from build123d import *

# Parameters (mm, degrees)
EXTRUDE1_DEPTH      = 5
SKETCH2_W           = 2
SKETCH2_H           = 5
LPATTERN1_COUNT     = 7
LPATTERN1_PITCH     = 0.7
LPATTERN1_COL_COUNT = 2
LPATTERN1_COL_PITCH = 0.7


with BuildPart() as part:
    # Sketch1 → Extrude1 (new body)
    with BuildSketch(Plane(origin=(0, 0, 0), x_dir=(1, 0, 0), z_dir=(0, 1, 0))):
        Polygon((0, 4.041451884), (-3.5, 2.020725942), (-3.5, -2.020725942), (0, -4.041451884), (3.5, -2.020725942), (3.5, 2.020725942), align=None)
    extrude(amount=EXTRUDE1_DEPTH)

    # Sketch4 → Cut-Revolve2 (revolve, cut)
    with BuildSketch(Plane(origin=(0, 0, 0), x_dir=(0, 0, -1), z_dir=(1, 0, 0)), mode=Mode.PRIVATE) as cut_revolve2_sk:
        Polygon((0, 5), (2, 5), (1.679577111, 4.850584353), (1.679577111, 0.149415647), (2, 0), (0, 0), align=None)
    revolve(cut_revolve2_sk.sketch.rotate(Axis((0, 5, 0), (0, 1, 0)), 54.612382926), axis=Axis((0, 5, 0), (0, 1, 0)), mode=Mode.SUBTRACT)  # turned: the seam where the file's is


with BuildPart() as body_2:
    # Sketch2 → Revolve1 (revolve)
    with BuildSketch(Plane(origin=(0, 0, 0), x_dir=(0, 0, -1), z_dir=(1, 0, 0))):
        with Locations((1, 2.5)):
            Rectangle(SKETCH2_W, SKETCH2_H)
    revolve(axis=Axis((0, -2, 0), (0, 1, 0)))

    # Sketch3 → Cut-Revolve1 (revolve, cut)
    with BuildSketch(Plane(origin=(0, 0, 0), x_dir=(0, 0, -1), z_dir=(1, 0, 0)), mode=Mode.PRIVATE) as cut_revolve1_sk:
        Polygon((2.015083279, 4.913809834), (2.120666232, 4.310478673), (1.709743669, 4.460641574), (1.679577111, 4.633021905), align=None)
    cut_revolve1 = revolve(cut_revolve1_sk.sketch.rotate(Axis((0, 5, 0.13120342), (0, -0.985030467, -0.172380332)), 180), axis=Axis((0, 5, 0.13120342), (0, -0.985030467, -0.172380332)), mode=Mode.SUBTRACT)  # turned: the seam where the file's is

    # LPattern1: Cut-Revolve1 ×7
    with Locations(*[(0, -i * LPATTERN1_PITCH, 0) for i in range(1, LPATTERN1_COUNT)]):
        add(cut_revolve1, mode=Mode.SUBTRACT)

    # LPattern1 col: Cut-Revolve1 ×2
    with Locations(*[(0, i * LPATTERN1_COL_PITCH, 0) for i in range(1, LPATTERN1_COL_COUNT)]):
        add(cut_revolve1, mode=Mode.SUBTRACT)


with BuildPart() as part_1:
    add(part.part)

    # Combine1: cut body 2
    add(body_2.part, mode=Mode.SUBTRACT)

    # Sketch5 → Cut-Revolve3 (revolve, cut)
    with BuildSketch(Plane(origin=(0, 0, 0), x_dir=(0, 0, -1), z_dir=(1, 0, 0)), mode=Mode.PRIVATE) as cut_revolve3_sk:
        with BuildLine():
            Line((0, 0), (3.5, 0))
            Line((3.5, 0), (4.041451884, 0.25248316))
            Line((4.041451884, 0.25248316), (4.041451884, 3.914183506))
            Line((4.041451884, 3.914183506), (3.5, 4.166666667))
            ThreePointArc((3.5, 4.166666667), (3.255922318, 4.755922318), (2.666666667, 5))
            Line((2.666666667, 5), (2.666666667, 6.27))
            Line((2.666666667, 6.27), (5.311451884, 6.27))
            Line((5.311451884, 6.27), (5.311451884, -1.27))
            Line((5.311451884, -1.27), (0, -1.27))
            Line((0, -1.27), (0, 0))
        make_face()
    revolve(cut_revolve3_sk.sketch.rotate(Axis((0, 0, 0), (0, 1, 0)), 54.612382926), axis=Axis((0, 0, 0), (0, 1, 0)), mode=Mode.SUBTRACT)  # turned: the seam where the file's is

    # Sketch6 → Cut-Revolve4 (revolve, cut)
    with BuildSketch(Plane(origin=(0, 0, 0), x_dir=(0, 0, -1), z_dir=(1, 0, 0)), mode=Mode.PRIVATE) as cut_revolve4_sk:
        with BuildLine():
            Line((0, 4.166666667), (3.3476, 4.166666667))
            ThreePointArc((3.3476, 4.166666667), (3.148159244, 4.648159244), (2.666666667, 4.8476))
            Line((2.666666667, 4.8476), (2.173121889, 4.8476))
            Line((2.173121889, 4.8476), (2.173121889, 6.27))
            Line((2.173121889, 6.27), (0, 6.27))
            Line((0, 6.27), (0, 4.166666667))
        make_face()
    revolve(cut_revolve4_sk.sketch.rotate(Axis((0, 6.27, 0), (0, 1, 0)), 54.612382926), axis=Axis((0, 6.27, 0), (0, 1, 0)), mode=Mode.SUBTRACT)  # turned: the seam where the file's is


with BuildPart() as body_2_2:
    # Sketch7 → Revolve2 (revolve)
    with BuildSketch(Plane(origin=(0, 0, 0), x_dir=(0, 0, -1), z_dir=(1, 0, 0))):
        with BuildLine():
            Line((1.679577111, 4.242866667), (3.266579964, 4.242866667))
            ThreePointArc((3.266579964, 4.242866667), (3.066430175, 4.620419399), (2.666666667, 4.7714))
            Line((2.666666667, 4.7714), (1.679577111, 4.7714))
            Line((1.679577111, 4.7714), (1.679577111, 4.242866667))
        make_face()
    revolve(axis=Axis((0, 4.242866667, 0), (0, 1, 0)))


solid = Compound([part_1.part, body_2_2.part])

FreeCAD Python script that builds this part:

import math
import FreeCAD as App
import Part
import Sketcher
Q = App.Units.Quantity

doc = App.newDocument("Part")
body = doc.addObject("PartDesign::Body", "Body")

# Sketch on XZ plane
sketch1 = body.newObject("Sketcher::SketchObject", "Sketch")
sketch1.AttachmentSupport = (doc.getObject("XZ_Plane"), [""])
sketch1.MapMode = "FlatFace"
sketch1.addGeometry(Part.LineSegment(App.Vector(0, -4.041452, 0), App.Vector(-3.5, -2.020726, 0)), False)
sketch1.addGeometry(Part.LineSegment(App.Vector(-3.5, -2.020726, 0), App.Vector(-3.5, 2.020726, 0)), False)
sketch1.addGeometry(Part.LineSegment(App.Vector(-3.5, 2.020726, 0), App.Vector(0, 4.041452, 0)), False)
sketch1.addGeometry(Part.LineSegment(App.Vector(0, 4.041452, 0), App.Vector(3.5, 2.020726, 0)), False)
sketch1.addGeometry(Part.LineSegment(App.Vector(3.5, 2.020726, 0), App.Vector(3.5, -2.020726, 0)), False)
sketch1.addGeometry(Part.LineSegment(App.Vector(3.5, -2.020726, 0), App.Vector(0, -4.041452, 0)), False)
sketch1.addConstraint(Sketcher.Constraint("Coincident", 0, 2, 1, 1))
sketch1.addConstraint(Sketcher.Constraint("Coincident", 1, 2, 2, 1))
sketch1.addConstraint(Sketcher.Constraint("Coincident", 2, 2, 3, 1))
sketch1.addConstraint(Sketcher.Constraint("Coincident", 3, 2, 4, 1))
sketch1.addConstraint(Sketcher.Constraint("Coincident", 4, 2, 5, 1))
sketch1.addConstraint(Sketcher.Constraint("Coincident", 5, 2, 0, 1))
sketch1.addConstraint(Sketcher.Constraint("Vertical", 1))
sketch1.addConstraint(Sketcher.Constraint("Vertical", 4))
sketch1.addConstraint(Sketcher.Constraint("Symmetric", 0, 2, 3, 2, -1, 1))
sketch1.addConstraint(Sketcher.Constraint("Symmetric", 2, 2, 5, 2, -1, 1))
sketch1.addConstraint(Sketcher.Constraint("PointOnObject", 2, 2, -2))
sketch1.addConstraint(Sketcher.Constraint("Parallel", 2, 5))
sketch1.addConstraint(Sketcher.Constraint("Horizontal", 1, 2, 3, 2))
sketch1.addConstraint(Sketcher.Constraint("Angle", 0, Q("150 deg")))
sketch1.addConstraint(Sketcher.Constraint("DistanceX", 1, 2, 3, 2, 7.0))
sketch1.addConstraint(Sketcher.Constraint("DistanceY", 1, 1, 1, 2, 4.041452))
pad1 = body.newObject("PartDesign::Pad", "Pad")
pad1.Profile = sketch1
pad1.Length = 5
pad1.Reversed = True

# Sketch on YZ plane
sketch2 = body.newObject("Sketcher::SketchObject", "Sketch001")
sketch2.AttachmentSupport = (doc.getObject("YZ_Plane"), [""])
sketch2.MapMode = "FlatFace"
sketch2.addGeometry(Part.LineSegment(App.Vector(5, -2, 0), App.Vector(5, 0, 0)), False)
sketch2.addGeometry(Part.LineSegment(App.Vector(5, 0, 0), App.Vector(0, 0, 0)), False)
sketch2.addGeometry(Part.LineSegment(App.Vector(0, 0, 0), App.Vector(0, -2, 0)), False)
sketch2.addGeometry(Part.LineSegment(App.Vector(0, -2, 0), App.Vector(0.149416, -1.679577, 0)), False)
sketch2.addGeometry(Part.LineSegment(App.Vector(0.149416, -1.679577, 0), App.Vector(4.850584, -1.679577, 0)), False)
sketch2.addGeometry(Part.LineSegment(App.Vector(4.850584, -1.679577, 0), App.Vector(5, -2, 0)), False)
sketch2.addConstraint(Sketcher.Constraint("Coincident", 0, 2, 1, 1))
sketch2.addConstraint(Sketcher.Constraint("Coincident", 1, 2, 2, 1))
sketch2.addConstraint(Sketcher.Constraint("Coincident", 2, 2, 3, 1))
sketch2.addConstraint(Sketcher.Constraint("Coincident", 3, 2, 4, 1))
sketch2.addConstraint(Sketcher.Constraint("Coincident", 4, 2, 5, 1))
sketch2.addConstraint(Sketcher.Constraint("Coincident", 5, 2, 0, 1))
sketch2.addConstraint(Sketcher.Constraint("Vertical", 0))
sketch2.addConstraint(Sketcher.Constraint("Horizontal", 1))
sketch2.addConstraint(Sketcher.Constraint("Vertical", 2))
sketch2.addConstraint(Sketcher.Constraint("Horizontal", 4))
sketch2.addConstraint(Sketcher.Constraint("Coincident", 1, 2, -1, 1))
sketch2.addConstraint(Sketcher.Constraint("Horizontal", 2, 2, 5, 2))
sketch2.addConstraint(Sketcher.Constraint("Equal", 3, 5))
sketch2.addConstraint(Sketcher.Constraint("DistanceX", 1, 2, 1, 1, 5.0))
sketch2.addConstraint(Sketcher.Constraint("DistanceY", 0, 1, 0, 2, 2.0))
sketch2.addConstraint(Sketcher.Constraint("Angle", 3, Q("65 deg")))
sketch2.addConstraint(Sketcher.Constraint("DistanceX", 4, 1, 4, 2, 4.701169))
groove = body.newObject("PartDesign::Groove", "Groove")
groove.Profile = sketch2
groove.ReferenceAxis = (sketch2, ["H_Axis"])
groove.Angle = 360
body2 = doc.addObject("PartDesign::Body", "Body001")

# Sketch on YZ plane
sketch3 = body2.newObject("Sketcher::SketchObject", "Sketch002")
sketch3.AttachmentSupport = (doc.getObject("YZ_Plane001"), [""])
sketch3.MapMode = "FlatFace"
sketch3.addGeometry(Part.LineSegment(App.Vector(5, 0, 0), App.Vector(0, 0, 0)), False)
sketch3.addGeometry(Part.LineSegment(App.Vector(0, 0, 0), App.Vector(0, -2, 0)), False)
sketch3.addGeometry(Part.LineSegment(App.Vector(0, -2, 0), App.Vector(5, -2, 0)), False)
sketch3.addGeometry(Part.LineSegment(App.Vector(5, -2, 0), App.Vector(5, 0, 0)), False)
sketch3.addConstraint(Sketcher.Constraint("Coincident", 0, 2, 1, 1))
sketch3.addConstraint(Sketcher.Constraint("Coincident", 1, 2, 2, 1))
sketch3.addConstraint(Sketcher.Constraint("Coincident", 2, 2, 3, 1))
sketch3.addConstraint(Sketcher.Constraint("Coincident", 3, 2, 0, 1))
sketch3.addConstraint(Sketcher.Constraint("Horizontal", 0))
sketch3.addConstraint(Sketcher.Constraint("Vertical", 1))
sketch3.addConstraint(Sketcher.Constraint("Horizontal", 2))
sketch3.addConstraint(Sketcher.Constraint("Vertical", 3))
sketch3.addConstraint(Sketcher.Constraint("Coincident", 0, 2, -1, 1))
sketch3.addConstraint(Sketcher.Constraint("DistanceX", 0, 2, 0, 1, 5.0))
sketch3.addConstraint(Sketcher.Constraint("DistanceY", 1, 2, 1, 1, 2.0))
revolution = body2.newObject("PartDesign::Revolution", "Revolution")
revolution.Profile = sketch3
revolution.ReferenceAxis = (sketch3, ["H_Axis"])
revolution.Angle = 360

# Sketch on YZ plane
sketch4 = body2.newObject("Sketcher::SketchObject", "Sketch003")
sketch4.AttachmentSupport = (doc.getObject("YZ_Plane001"), [""])
sketch4.MapMode = "FlatFace"
sketch4.addGeometry(Part.LineSegment(App.Vector(4.310479, -2.120666, 0), App.Vector(4.91381, -2.015083, 0)), False)
sketch4.addGeometry(Part.LineSegment(App.Vector(4.91381, -2.015083, 0), App.Vector(4.633022, -1.679577, 0)), False)
sketch4.addGeometry(Part.LineSegment(App.Vector(4.633022, -1.679577, 0), App.Vector(4.460642, -1.709744, 0)), False)
sketch4.addGeometry(Part.LineSegment(App.Vector(4.460642, -1.709744, 0), App.Vector(4.310479, -2.120666, 0)), False)
sketch4.addGeometry(Part.LineSegment(App.Vector(4.551932, 0.052791, 0), App.Vector(3.948601, -0.052791, 0)), True)  # axis
sketch4.addConstraint(Sketcher.Constraint("Coincident", 0, 2, 1, 1))
sketch4.addConstraint(Sketcher.Constraint("Coincident", 1, 2, 2, 1))
sketch4.addConstraint(Sketcher.Constraint("Coincident", 2, 2, 3, 1))
sketch4.addConstraint(Sketcher.Constraint("Coincident", 3, 2, 0, 1))
sketch4.addConstraint(Sketcher.Constraint("Parallel", 0, 2))
sketch4.addConstraint(Sketcher.Constraint("Parallel", 2, 4))
sketch4.addConstraint(Sketcher.Constraint("Equal", 1, 3))
sketch4.addConstraint(Sketcher.Constraint("Equal", 0, 4))
sketch4.addConstraint(Sketcher.Constraint("Distance", 2, 0.175))
sketch4.addConstraint(Sketcher.Constraint("Distance", 0, 0.6125))
sketch4.addConstraint(Sketcher.Constraint("Distance", 1, 0.4375))
sketch4.addConstraint(Sketcher.Constraint("DistanceX", -1, 1, 4, 2, 3.948601))
sketch4.addConstraint(Sketcher.Constraint("DistanceX", -1, 1, 0, 2, 4.91381))
sketch4.addConstraint(Sketcher.Constraint("DistanceX", -1, 1, 1, 2, 4.633022))
sketch4.addConstraint(Sketcher.Constraint("DistanceY", -1, 1, 4, 1, 0.052791))
sketch4.addConstraint(Sketcher.Constraint("DistanceY", 1, 2, 4, 1, 1.732369))
groove2 = body2.newObject("PartDesign::Groove", "Groove001")
groove2.Profile = sketch4
groove2.ReferenceAxis = (sketch4, ["Axis0"])
groove2.Angle = 360
doc.recompute()

linearpattern = body2.newObject("PartDesign::LinearPattern", "LinearPattern")
linearpattern.Originals = [groove2]
linearpattern.Direction = (doc.getObject("Y_Axis001"), [""])
linearpattern.Mode = "offset"
linearpattern.Offset = 0.7
linearpattern.Occurrences = 7
linearpattern.Reversed = True
body2.Tip = linearpattern
doc.recompute()

linearpattern2 = body2.newObject("PartDesign::LinearPattern", "LinearPattern001")
linearpattern2.Originals = [groove2]
linearpattern2.Direction = (doc.getObject("Y_Axis001"), [""])
linearpattern2.Mode = "offset"
linearpattern2.Offset = 0.7
linearpattern2.Occurrences = 2
body2.Tip = linearpattern2
doc.recompute()

boolean = body.newObject("PartDesign::Boolean", "Boolean")
boolean.Type = "Cut"
boolean.addObjects([body2])

# Sketch on YZ plane
sketch5 = body.newObject("Sketcher::SketchObject", "Sketch004")
sketch5.AttachmentSupport = (doc.getObject("YZ_Plane"), [""])
sketch5.MapMode = "FlatFace"
sketch5.addGeometry(Part.LineSegment(App.Vector(0, -3.5, 0), App.Vector(0, 0, 0)), False)
sketch5.addGeometry(Part.LineSegment(App.Vector(0, 0, 0), App.Vector(-1.27, 0, 0)), False)
sketch5.addGeometry(Part.LineSegment(App.Vector(-1.27, 0, 0), App.Vector(-1.27, -5.311452, 0)), False)
sketch5.addGeometry(Part.LineSegment(App.Vector(-1.27, -5.311452, 0), App.Vector(6.27, -5.311452, 0)), False)
sketch5.addGeometry(Part.LineSegment(App.Vector(6.27, -5.311452, 0), App.Vector(6.27, -2.666667, 0)), False)
sketch5.addGeometry(Part.LineSegment(App.Vector(6.27, -2.666667, 0), App.Vector(5, -2.666667, 0)), False)
sketch5.addGeometry(Part.ArcOfCircle(Part.Circle(App.Vector(4.166667, -2.666667, 0), App.Vector(0, 0, 1), 0.833333), math.radians(-90), math.radians(0)), False)
sketch5.addGeometry(Part.LineSegment(App.Vector(4.166667, -3.5, 0), App.Vector(3.914184, -4.041452, 0)), False)
sketch5.addGeometry(Part.LineSegment(App.Vector(3.914184, -4.041452, 0), App.Vector(0.252483, -4.041452, 0)), False)
sketch5.addGeometry(Part.LineSegment(App.Vector(0.252483, -4.041452, 0), App.Vector(0, -3.5, 0)), False)
sketch5.addConstraint(Sketcher.Constraint("Coincident", 0, 2, 1, 1))
sketch5.addConstraint(Sketcher.Constraint("Coincident", 1, 2, 2, 1))
sketch5.addConstraint(Sketcher.Constraint("Coincident", 2, 2, 3, 1))
sketch5.addConstraint(Sketcher.Constraint("Coincident", 3, 2, 4, 1))
sketch5.addConstraint(Sketcher.Constraint("Coincident", 4, 2, 5, 1))
sketch5.addConstraint(Sketcher.Constraint("Coincident", 5, 2, 6, 2))
sketch5.addConstraint(Sketcher.Constraint("Coincident", 6, 1, 7, 1))
sketch5.addConstraint(Sketcher.Constraint("Coincident", 7, 2, 8, 1))
sketch5.addConstraint(Sketcher.Constraint("Coincident", 8, 2, 9, 1))
sketch5.addConstraint(Sketcher.Constraint("Coincident", 9, 2, 0, 1))
sketch5.addConstraint(Sketcher.Constraint("Vertical", 0))
sketch5.addConstraint(Sketcher.Constraint("Horizontal", 1))
sketch5.addConstraint(Sketcher.Constraint("Vertical", 2))
sketch5.addConstraint(Sketcher.Constraint("Horizontal", 3))
sketch5.addConstraint(Sketcher.Constraint("Vertical", 4))
sketch5.addConstraint(Sketcher.Constraint("Horizontal", 5))
sketch5.addConstraint(Sketcher.Constraint("Horizontal", 8))
sketch5.addConstraint(Sketcher.Constraint("Coincident", 0, 2, -1, 1))
sketch5.addConstraint(Sketcher.Constraint("Horizontal", 6, 3, 4, 2))
sketch5.addConstraint(Sketcher.Constraint("Horizontal", 6, 1, 9, 2))
sketch5.addConstraint(Sketcher.Constraint("Equal", 1, 5))
sketch5.addConstraint(Sketcher.Constraint("Equal", 7, 9))
sketch5.addConstraint(Sketcher.Constraint("Angle", 7, Q("-115 deg")))
sketch5.addConstraint(Sketcher.Constraint("DistanceY", 0, 1, 0, 2, 3.5))
sketch5.addConstraint(Sketcher.Constraint("DistanceX", -1, 1, 5, 2, 5.0))
sketch5.addConstraint(Sketcher.Constraint("DistanceX", 1, 2, 1, 1, 1.27))
sketch5.addConstraint(Sketcher.Constraint("DistanceY", 3, 2, 7, 2, 1.27))
sketch5.addConstraint(Sketcher.Constraint("DistanceX", 8, 2, 8, 1, 3.6617))
sketch5.addConstraint(Sketcher.Constraint("Radius", 6, 0.833333))
sketch5.addConstraint(Sketcher.Constraint("DistanceY", 2, 2, 2, 1, 5.311452))
groove3 = body.newObject("PartDesign::Groove", "Groove002")
groove3.Profile = sketch5
groove3.ReferenceAxis = (sketch5, ["H_Axis"])
groove3.Angle = 360

# Sketch on YZ plane
sketch6 = body.newObject("Sketcher::SketchObject", "Sketch005")
sketch6.AttachmentSupport = (doc.getObject("YZ_Plane"), [""])
sketch6.MapMode = "FlatFace"
sketch6.addGeometry(Part.LineSegment(App.Vector(4.166667, 0, 0), App.Vector(4.166667, -3.3476, 0)), False)
sketch6.addGeometry(Part.ArcOfCircle(Part.Circle(App.Vector(4.166667, -2.666667, 0), App.Vector(0, 0, 1), 0.680933), math.radians(-90), math.radians(0)), False)
sketch6.addGeometry(Part.LineSegment(App.Vector(4.8476, -2.666667, 0), App.Vector(4.8476, -2.173122, 0)), False)
sketch6.addGeometry(Part.LineSegment(App.Vector(4.8476, -2.173122, 0), App.Vector(6.27, -2.173122, 0)), False)
sketch6.addGeometry(Part.LineSegment(App.Vector(6.27, -2.173122, 0), App.Vector(6.27, 0, 0)), False)
sketch6.addGeometry(Part.LineSegment(App.Vector(6.27, 0, 0), App.Vector(4.166667, 0, 0)), False)
sketch6.addConstraint(Sketcher.Constraint("Coincident", 0, 2, 1, 1))
sketch6.addConstraint(Sketcher.Constraint("Tangent", 1, 2, 2, 1))
sketch6.addConstraint(Sketcher.Constraint("Coincident", 2, 2, 3, 1))
sketch6.addConstraint(Sketcher.Constraint("Coincident", 3, 2, 4, 1))
sketch6.addConstraint(Sketcher.Constraint("Coincident", 4, 2, 5, 1))
sketch6.addConstraint(Sketcher.Constraint("Coincident", 5, 2, 0, 1))
sketch6.addConstraint(Sketcher.Constraint("Vertical", 0))
sketch6.addConstraint(Sketcher.Constraint("Vertical", 2))
sketch6.addConstraint(Sketcher.Constraint("Horizontal", 3))
sketch6.addConstraint(Sketcher.Constraint("Vertical", 4))
sketch6.addConstraint(Sketcher.Constraint("Horizontal", 5))
sketch6.addConstraint(Sketcher.Constraint("PointOnObject", 4, 2, -1))
sketch6.addConstraint(Sketcher.Constraint("Vertical", 1, 3, 0, 2))
sketch6.addConstraint(Sketcher.Constraint("DistanceX", -1, 1, 3, 2, 6.27))
sketch6.addConstraint(Sketcher.Constraint("DistanceX", 3, 1, 3, 2, 1.4224))
sketch6.addConstraint(Sketcher.Constraint("DistanceY", 0, 2, 0, 1, 3.3476))
sketch6.addConstraint(Sketcher.Constraint("Radius", 1, 0.680933))
sketch6.addConstraint(Sketcher.Constraint("DistanceY", 4, 1, 4, 2, 2.173122))
groove4 = body.newObject("PartDesign::Groove", "Groove003")
groove4.Profile = sketch6
groove4.ReferenceAxis = (sketch6, ["H_Axis"])
groove4.Angle = 360
body3 = doc.addObject("PartDesign::Body", "Body002")

# Sketch on YZ plane
sketch7 = body3.newObject("Sketcher::SketchObject", "Sketch006")
sketch7.AttachmentSupport = (doc.getObject("YZ_Plane002"), [""])
sketch7.MapMode = "FlatFace"
sketch7.addGeometry(Part.LineSegment(App.Vector(4.242867, -1.679577, 0), App.Vector(4.242867, -3.26658, 0)), False)
sketch7.addGeometry(Part.ArcOfCircle(Part.Circle(App.Vector(4.166667, -2.666667, 0), App.Vector(0, 0, 1), 0.604733), math.radians(-82.761148), math.radians(0)), False)
sketch7.addGeometry(Part.LineSegment(App.Vector(4.7714, -2.666667, 0), App.Vector(4.7714, -1.679577, 0)), False)
sketch7.addGeometry(Part.LineSegment(App.Vector(4.7714, -1.679577, 0), App.Vector(4.242867, -1.679577, 0)), False)
sketch7.addConstraint(Sketcher.Constraint("Coincident", 0, 2, 1, 1))
sketch7.addConstraint(Sketcher.Constraint("Tangent", 1, 2, 2, 1))
sketch7.addConstraint(Sketcher.Constraint("Coincident", 2, 2, 3, 1))
sketch7.addConstraint(Sketcher.Constraint("Coincident", 3, 2, 0, 1))
sketch7.addConstraint(Sketcher.Constraint("Vertical", 0))
sketch7.addConstraint(Sketcher.Constraint("Vertical", 2))
sketch7.addConstraint(Sketcher.Constraint("Horizontal", 3))
sketch7.addConstraint(Sketcher.Constraint("Radius", 1, 0.604733))
sketch7.addConstraint(Sketcher.Constraint("DistanceY", 2, 1, 2, 2, 0.98709))
sketch7.addConstraint(Sketcher.Constraint("DistanceX", -1, 1, 1, 2, 4.7714))
sketch7.addConstraint(Sketcher.Constraint("DistanceX", 1, 3, 0, 2, 0.0762))
sketch7.addConstraint(Sketcher.Constraint("DistanceY", 0, 2, -1, 1, 3.26658))
revolution2 = body3.newObject("PartDesign::Revolution", "Revolution001")
revolution2.Profile = sketch7
revolution2.ReferenceAxis = (sketch7, ["H_Axis"])
revolution2.Angle = 360

doc.recompute()
